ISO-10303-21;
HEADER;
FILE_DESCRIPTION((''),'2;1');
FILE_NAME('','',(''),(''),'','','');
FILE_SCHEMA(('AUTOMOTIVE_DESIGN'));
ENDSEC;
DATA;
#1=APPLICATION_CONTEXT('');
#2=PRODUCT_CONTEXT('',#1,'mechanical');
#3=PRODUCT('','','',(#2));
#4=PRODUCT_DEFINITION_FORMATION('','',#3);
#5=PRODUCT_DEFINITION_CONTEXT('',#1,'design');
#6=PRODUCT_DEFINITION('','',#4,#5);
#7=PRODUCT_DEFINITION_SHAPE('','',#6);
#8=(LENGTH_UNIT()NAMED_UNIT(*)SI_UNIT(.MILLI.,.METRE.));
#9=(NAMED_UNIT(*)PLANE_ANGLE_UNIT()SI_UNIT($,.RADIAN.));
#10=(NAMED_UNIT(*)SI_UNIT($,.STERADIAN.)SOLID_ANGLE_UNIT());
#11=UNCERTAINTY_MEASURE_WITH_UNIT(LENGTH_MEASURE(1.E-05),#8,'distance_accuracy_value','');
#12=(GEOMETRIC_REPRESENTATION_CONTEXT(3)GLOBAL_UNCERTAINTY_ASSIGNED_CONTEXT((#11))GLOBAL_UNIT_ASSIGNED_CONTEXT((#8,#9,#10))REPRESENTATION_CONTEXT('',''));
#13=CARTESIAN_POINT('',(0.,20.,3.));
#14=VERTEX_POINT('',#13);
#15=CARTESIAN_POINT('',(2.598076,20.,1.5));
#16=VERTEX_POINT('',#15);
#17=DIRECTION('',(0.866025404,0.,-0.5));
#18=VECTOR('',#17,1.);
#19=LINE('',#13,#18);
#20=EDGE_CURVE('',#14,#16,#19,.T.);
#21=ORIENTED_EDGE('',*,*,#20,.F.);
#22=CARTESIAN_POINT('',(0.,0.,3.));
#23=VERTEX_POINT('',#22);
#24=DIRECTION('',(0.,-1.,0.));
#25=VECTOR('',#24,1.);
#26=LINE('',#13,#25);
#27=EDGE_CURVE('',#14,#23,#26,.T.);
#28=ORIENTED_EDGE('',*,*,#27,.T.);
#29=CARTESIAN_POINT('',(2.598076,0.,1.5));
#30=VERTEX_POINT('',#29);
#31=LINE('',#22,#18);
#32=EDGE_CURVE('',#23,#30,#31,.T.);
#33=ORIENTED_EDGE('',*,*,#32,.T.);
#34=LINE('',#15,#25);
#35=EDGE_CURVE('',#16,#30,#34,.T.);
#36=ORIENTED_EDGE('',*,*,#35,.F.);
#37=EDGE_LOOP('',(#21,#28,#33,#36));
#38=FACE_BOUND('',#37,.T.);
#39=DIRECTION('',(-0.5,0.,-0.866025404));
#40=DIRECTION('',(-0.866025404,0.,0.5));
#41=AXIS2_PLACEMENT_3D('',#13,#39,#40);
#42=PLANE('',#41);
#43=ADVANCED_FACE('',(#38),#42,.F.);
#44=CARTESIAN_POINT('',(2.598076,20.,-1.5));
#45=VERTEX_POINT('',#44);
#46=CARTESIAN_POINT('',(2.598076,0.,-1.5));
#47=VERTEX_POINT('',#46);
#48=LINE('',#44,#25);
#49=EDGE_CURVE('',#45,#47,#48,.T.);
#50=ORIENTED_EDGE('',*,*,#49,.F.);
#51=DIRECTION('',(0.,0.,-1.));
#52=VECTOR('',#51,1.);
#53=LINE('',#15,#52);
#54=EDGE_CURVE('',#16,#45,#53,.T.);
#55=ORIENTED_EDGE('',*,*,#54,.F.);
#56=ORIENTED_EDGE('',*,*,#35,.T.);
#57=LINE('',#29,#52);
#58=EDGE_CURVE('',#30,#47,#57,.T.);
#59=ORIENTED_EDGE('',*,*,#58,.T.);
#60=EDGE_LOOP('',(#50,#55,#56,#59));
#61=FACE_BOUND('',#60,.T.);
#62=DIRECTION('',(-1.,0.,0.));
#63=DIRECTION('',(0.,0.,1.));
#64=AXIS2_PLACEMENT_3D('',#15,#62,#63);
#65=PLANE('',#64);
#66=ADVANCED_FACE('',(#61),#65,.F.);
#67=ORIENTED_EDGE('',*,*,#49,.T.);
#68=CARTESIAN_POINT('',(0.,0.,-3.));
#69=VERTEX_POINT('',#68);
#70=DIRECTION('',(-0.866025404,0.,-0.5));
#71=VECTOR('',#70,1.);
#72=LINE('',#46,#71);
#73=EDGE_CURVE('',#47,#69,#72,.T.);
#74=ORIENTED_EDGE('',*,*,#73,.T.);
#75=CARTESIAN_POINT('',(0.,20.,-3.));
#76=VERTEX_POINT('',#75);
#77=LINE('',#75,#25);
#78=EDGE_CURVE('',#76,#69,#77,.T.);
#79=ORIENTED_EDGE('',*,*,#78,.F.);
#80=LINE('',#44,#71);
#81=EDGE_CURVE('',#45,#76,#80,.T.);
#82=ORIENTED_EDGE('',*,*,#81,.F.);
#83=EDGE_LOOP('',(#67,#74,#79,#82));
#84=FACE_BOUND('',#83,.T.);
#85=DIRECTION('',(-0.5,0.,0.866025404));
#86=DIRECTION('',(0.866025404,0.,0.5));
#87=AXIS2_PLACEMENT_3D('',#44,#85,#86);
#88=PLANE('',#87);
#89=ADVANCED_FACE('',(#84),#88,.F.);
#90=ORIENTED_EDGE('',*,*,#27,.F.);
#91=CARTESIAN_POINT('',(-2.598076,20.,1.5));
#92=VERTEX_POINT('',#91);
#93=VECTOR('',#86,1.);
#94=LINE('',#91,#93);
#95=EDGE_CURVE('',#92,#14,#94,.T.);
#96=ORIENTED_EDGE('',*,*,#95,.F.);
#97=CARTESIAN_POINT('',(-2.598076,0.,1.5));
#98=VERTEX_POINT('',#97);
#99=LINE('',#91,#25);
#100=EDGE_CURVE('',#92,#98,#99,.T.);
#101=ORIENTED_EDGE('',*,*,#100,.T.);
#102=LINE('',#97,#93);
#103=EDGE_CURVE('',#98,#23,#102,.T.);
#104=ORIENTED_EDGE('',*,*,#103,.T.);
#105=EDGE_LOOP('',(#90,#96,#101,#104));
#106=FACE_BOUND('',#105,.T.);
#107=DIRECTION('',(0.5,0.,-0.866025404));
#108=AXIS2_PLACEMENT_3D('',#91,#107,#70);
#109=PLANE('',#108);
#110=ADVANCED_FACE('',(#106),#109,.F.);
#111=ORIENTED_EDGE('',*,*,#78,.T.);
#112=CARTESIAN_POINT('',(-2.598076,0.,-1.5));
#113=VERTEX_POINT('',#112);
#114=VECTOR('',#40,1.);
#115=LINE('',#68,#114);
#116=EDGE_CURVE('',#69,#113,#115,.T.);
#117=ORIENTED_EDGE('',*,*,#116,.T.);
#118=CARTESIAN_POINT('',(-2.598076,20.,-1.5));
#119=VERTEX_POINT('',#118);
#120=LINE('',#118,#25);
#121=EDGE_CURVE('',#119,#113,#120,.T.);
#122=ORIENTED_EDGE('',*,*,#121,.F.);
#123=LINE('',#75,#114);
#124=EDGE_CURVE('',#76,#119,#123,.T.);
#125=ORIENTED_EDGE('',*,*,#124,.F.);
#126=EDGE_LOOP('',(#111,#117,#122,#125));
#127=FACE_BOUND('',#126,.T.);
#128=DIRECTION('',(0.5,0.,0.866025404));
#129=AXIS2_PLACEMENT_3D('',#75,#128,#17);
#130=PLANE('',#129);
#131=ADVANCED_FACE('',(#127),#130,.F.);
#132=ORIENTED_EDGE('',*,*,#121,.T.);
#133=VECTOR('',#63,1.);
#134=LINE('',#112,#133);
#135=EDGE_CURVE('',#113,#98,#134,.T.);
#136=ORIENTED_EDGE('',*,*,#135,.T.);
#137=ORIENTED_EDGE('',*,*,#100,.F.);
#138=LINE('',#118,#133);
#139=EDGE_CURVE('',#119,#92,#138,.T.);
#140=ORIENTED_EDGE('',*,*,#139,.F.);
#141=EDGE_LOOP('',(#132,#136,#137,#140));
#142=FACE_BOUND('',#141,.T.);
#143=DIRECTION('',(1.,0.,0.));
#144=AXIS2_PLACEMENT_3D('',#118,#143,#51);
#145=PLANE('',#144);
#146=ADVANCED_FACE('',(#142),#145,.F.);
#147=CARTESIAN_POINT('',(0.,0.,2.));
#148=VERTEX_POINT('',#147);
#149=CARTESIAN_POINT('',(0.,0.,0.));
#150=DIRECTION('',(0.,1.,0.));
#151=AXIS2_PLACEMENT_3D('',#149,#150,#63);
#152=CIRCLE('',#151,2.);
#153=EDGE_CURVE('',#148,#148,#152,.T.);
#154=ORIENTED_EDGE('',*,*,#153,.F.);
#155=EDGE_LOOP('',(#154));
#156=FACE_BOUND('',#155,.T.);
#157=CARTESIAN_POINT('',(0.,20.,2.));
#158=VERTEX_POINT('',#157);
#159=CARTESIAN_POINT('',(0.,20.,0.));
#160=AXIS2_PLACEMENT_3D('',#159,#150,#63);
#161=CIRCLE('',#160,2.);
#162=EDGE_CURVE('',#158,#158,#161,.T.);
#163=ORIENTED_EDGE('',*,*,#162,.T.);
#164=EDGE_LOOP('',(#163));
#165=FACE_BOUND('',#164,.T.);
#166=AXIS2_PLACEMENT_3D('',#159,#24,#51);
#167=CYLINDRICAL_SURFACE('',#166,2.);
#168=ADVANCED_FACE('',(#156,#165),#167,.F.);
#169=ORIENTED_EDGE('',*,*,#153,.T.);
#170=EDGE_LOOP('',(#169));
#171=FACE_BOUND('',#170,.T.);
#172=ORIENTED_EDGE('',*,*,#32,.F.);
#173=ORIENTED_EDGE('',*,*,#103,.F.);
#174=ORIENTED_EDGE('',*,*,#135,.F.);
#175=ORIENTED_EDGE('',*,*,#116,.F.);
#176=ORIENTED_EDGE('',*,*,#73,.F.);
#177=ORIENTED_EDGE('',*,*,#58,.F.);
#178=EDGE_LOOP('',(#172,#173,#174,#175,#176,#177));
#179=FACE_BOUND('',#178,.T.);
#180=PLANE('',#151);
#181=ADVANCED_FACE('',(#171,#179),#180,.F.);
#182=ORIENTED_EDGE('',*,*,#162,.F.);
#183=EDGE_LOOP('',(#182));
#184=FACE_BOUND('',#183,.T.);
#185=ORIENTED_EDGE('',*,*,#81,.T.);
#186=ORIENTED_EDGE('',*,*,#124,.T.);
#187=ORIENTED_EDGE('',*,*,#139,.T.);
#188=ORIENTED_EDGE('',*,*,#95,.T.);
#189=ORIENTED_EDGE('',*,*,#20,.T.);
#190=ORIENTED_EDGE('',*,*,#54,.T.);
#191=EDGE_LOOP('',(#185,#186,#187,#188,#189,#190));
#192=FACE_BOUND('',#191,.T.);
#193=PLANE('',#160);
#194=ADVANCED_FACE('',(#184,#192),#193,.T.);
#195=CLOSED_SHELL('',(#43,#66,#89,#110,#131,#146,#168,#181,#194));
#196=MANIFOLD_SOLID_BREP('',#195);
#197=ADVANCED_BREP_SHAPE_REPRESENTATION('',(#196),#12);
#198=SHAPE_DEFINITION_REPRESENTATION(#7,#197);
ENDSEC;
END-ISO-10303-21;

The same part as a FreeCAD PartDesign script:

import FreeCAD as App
import Part
import Sketcher
from FreeCAD import Vector
Q = App.Units.Quantity

doc = App.newDocument("Part")
body = doc.addObject("PartDesign::Body", "Body")

# Sketch on XZ plane
sketch1 = body.newObject("Sketcher::SketchObject", "Sketch")
sketch1.AttachmentSupport = (doc.getObject("XZ_Plane"), [""])
sketch1.MapMode = "FlatFace"
sketch1.addGeometry(Part.LineSegment(Vector(0, -3, 0), Vector(-2.6, -1.5, 0)), False)
sketch1.addGeometry(Part.LineSegment(Vector(-2.6, -1.5, 0), Vector(-2.6, 1.5, 0)), False)
sketch1.addGeometry(Part.LineSegment(Vector(-2.6, 1.5, 0), Vector(0, 3, 0)), False)
sketch1.addGeometry(Part.LineSegment(Vector(0, 3, 0), Vector(2.6, 1.5, 0)), False)
sketch1.addGeometry(Part.LineSegment(Vector(2.6, 1.5, 0), Vector(2.6, -1.5, 0)), False)
sketch1.addGeometry(Part.LineSegment(Vector(2.6, -1.5, 0), Vector(0, -3, 0)), False)
sketch1.addGeometry(Part.Circle(Vector(0, 0, 0), Vector(0, 0, 1), 2), False)
sketch1.addConstraint(Sketcher.Constraint("Coincident", 0, 2, 1, 1))
sketch1.addConstraint(Sketcher.Constraint("Coincident", 1, 2, 2, 1))
sketch1.addConstraint(Sketcher.Constraint("Coincident", 2, 2, 3, 1))
sketch1.addConstraint(Sketcher.Constraint("Coincident", 3, 2, 4, 1))
sketch1.addConstraint(Sketcher.Constraint("Coincident", 4, 2, 5, 1))
sketch1.addConstraint(Sketcher.Constraint("Coincident", 5, 2, 0, 1))
sketch1.addConstraint(Sketcher.Constraint("Vertical", 1))
sketch1.addConstraint(Sketcher.Constraint("Vertical", 4))
sketch1.addConstraint(Sketcher.Constraint("Coincident", 6, 3, -1, 1))
sketch1.addConstraint(Sketcher.Constraint("Symmetric", 0, 2, 3, 2, -1, 1))
sketch1.addConstraint(Sketcher.Constraint("Symmetric", 2, 2, 5, 2, -1, 1))
sketch1.addConstraint(Sketcher.Constraint("PointOnObject", 2, 2, -2))
sketch1.addConstraint(Sketcher.Constraint("Parallel", 2, 5))
sketch1.addConstraint(Sketcher.Constraint("Horizontal", 1, 2, 3, 2))
sketch1.addConstraint(Sketcher.Constraint("Diameter", 6, Q("4 mm")))
sketch1.addConstraint(Sketcher.Constraint("DistanceY", 1, 1, 1, 2, Q("3 mm")))
sketch1.addConstraint(Sketcher.Constraint("Angle", 0, Q("150 deg")))
sketch1.addConstraint(Sketcher.Constraint("Distance", 0, Q("3 mm")))
pad1 = body.newObject("PartDesign::Pad", "Pad")
pad1.Profile = sketch1
pad1.Length = 20
pad1.Reversed = True

doc.recompute()
